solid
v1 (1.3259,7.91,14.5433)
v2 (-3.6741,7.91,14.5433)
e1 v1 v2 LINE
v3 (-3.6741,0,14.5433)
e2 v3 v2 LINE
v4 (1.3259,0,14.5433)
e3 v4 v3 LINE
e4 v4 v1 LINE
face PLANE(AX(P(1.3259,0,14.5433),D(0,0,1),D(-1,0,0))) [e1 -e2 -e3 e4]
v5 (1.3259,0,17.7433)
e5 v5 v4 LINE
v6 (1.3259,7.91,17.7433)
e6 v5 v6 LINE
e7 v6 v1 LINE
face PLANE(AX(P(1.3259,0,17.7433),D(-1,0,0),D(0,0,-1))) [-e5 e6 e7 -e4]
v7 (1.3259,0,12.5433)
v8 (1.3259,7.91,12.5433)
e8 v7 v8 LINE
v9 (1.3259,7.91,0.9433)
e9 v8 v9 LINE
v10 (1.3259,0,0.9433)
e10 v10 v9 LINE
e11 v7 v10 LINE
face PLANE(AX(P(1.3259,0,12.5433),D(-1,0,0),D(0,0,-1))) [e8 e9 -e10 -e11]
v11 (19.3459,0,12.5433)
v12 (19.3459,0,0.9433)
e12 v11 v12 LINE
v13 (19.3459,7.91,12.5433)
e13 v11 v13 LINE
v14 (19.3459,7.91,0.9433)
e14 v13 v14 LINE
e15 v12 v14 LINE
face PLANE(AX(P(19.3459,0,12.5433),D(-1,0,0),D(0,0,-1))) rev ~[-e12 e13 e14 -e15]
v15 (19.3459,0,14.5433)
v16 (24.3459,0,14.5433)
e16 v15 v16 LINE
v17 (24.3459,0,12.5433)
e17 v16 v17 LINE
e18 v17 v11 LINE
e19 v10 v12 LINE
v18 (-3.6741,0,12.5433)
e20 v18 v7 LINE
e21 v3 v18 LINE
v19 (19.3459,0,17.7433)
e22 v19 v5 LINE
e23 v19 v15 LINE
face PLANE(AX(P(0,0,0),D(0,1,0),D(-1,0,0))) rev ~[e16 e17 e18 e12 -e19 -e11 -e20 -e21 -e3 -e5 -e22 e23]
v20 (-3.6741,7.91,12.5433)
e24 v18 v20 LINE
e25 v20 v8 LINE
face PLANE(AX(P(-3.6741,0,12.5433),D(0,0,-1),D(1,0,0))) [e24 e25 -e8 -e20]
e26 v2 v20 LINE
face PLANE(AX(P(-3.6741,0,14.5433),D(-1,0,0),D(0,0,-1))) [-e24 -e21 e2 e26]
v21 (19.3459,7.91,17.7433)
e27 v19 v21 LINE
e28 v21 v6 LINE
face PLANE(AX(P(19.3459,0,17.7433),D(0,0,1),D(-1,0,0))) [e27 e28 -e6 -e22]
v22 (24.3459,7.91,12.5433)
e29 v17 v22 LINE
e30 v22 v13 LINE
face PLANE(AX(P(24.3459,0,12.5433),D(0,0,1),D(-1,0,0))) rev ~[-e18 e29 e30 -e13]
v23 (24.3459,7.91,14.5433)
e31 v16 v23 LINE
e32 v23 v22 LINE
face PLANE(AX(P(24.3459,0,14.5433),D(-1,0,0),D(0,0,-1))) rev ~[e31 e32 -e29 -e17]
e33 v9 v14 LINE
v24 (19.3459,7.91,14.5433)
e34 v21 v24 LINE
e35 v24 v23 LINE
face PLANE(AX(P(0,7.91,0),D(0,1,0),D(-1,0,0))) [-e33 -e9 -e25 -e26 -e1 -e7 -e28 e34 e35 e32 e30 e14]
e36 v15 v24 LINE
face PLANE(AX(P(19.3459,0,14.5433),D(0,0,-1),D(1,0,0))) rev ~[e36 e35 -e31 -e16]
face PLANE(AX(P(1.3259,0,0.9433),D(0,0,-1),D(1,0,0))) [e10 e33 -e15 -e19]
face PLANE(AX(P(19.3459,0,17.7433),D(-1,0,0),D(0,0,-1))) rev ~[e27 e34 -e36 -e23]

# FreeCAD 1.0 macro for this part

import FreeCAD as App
import Part
import Sketcher
from FreeCAD import Vector

doc = App.newDocument("Part")
body = doc.addObject("PartDesign::Body", "Body")

# Sketch on XZ plane
sketch1 = doc.addObject("Sketcher::SketchObject", "Sketch")
body.addObject(sketch1)
sketch1.AttachmentSupport = (doc.XZ_Plane, [""])
sketch1.MapMode = "FlatFace"
sketch1.addGeometry(Part.LineSegment(Vector(1.3259, 17.7433, 0), Vector(19.3459, 17.7433, 0)), False)
sketch1.addGeometry(Part.LineSegment(Vector(19.3459, 17.7433, 0), Vector(19.3459, 14.5433, 0)), False)
sketch1.addGeometry(Part.LineSegment(Vector(19.3459, 14.5433, 0), Vector(24.3459, 14.5433, 0)), False)
sketch1.addGeometry(Part.LineSegment(Vector(24.3459, 14.5433, 0), Vector(24.3459, 12.5433, 0)), False)
sketch1.addGeometry(Part.LineSegment(Vector(24.3459, 12.5433, 0), Vector(19.3459, 12.5433, 0)), False)
sketch1.addGeometry(Part.LineSegment(Vector(19.3459, 12.5433, 0), Vector(19.3459, 0.9433, 0)), False)
sketch1.addGeometry(Part.LineSegment(Vector(19.3459, 0.9433, 0), Vector(1.3259, 0.9433, 0)), False)
sketch1.addGeometry(Part.LineSegment(Vector(1.3259, 0.9433, 0), Vector(1.3259, 12.5433, 0)), False)
sketch1.addGeometry(Part.LineSegment(Vector(1.3259, 12.5433, 0), Vector(-3.6741, 12.5433, 0)), False)
sketch1.addGeometry(Part.LineSegment(Vector(-3.6741, 12.5433, 0), Vector(-3.6741, 14.5433, 0)), False)
sketch1.addGeometry(Part.LineSegment(Vector(-3.6741, 14.5433, 0), Vector(1.3259, 14.5433, 0)), False)
sketch1.addGeometry(Part.LineSegment(Vector(1.3259, 14.5433, 0), Vector(1.3259, 17.7433, 0)), False)
sketch1.addConstraint(Sketcher.Constraint("Coincident", 0, 2, 1, 1))
sketch1.addConstraint(Sketcher.Constraint("Coincident", 1, 2, 2, 1))
sketch1.addConstraint(Sketcher.Constraint("Coincident", 2, 2, 3, 1))
sketch1.addConstraint(Sketcher.Constraint("Coincident", 3, 2, 4, 1))
sketch1.addConstraint(Sketcher.Constraint("Coincident", 4, 2, 5, 1))
sketch1.addConstraint(Sketcher.Constraint("Coincident", 5, 2, 6, 1))
sketch1.addConstraint(Sketcher.Constraint("Coincident", 6, 2, 7, 1))
sketch1.addConstraint(Sketcher.Constraint("Coincident", 7, 2, 8, 1))
sketch1.addConstraint(Sketcher.Constraint("Coincident", 8, 2, 9, 1))
sketch1.addConstraint(Sketcher.Constraint("Coincident", 9, 2, 10, 1))
sketch1.addConstraint(Sketcher.Constraint("Coincident", 10, 2, 11, 1))
sketch1.addConstraint(Sketcher.Constraint("Coincident", 11, 2, 0, 1))
sketch1.addConstraint(Sketcher.Constraint("Horizontal", 0))
sketch1.addConstraint(Sketcher.Constraint("Vertical", 1))
sketch1.addConstraint(Sketcher.Constraint("Horizontal", 2))
sketch1.addConstraint(Sketcher.Constraint("Vertical", 3))
sketch1.addConstraint(Sketcher.Constraint("Horizontal", 4))
sketch1.addConstraint(Sketcher.Constraint("Vertical", 5))
sketch1.addConstraint(Sketcher.Constraint("Horizontal", 6))
sketch1.addConstraint(Sketcher.Constraint("Vertical", 7))
sketch1.addConstraint(Sketcher.Constraint("Horizontal", 8))
sketch1.addConstraint(Sketcher.Constraint("Vertical", 9))
sketch1.addConstraint(Sketcher.Constraint("Horizontal", 10))
sketch1.addConstraint(Sketcher.Constraint("Vertical", 11))
sketch1.addConstraint(Sketcher.Constraint("Horizontal", 4, 2, 7, 2))
sketch1.addConstraint(Sketcher.Constraint("Horizontal", 2, 2, 9, 2))
sketch1.addConstraint(Sketcher.Constraint("Vertical", 1, 2, 4, 2))
sketch1.addConstraint(Sketcher.Constraint("Vertical", 7, 2, 10, 2))
sketch1.addConstraint(Sketcher.Constraint("Equal", 4, 8))
sketch1.addConstraint(Sketcher.Constraint("DistanceX", 2, 1, 2, 2, 5.0))
sketch1.addConstraint(Sketcher.Constraint("DistanceY", 3, 2, 3, 1, 2.0))
sketch1.addConstraint(Sketcher.Constraint("DistanceY", 1, 2, 1, 1, 3.2))
sketch1.addConstraint(Sketcher.Constraint("DistanceX", 0, 1, 0, 2, 18.02))
sketch1.addConstraint(Sketcher.Constraint("DistanceY", 5, 2, 0, 2, 16.8))
sketch1.addConstraint(Sketcher.Constraint("DistanceX", -1, 1, 0, 2, 19.346))
sketch1.addConstraint(Sketcher.Constraint("DistanceY", -1, 1, 0, 2, 17.7433))
pad1 = doc.addObject("PartDesign::Pad", "Pad")
body.addObject(pad1)
pad1.Profile = sketch1
pad1.Length = 7.91
pad1.Reversed = True

doc.recompute()
